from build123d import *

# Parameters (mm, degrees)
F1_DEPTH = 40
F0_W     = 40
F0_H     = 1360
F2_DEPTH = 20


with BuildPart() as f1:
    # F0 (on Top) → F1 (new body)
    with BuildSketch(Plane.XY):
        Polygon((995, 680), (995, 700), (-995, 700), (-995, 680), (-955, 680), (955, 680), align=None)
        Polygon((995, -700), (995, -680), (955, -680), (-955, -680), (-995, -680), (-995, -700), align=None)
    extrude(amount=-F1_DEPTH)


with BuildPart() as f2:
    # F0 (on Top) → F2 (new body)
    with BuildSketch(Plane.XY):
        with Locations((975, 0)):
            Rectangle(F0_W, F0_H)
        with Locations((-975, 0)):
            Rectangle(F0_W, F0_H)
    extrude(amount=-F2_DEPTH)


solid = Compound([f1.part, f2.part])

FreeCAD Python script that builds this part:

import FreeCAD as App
import Part
import Sketcher

V = App.Vector


def add_polygon(sketch, points):
    """Adds a closed chain of lines whose ends are joined by coincident constraints."""
    first, n = sketch.GeometryCount, len(points)
    for a, b in zip(points, points[1:] + points[:1]):
        sketch.addGeometry(Part.LineSegment(App.Vector(*a, 0), App.Vector(*b, 0)), False)
    for i in range(n):
        sketch.addConstraint(Sketcher.Constraint("Coincident", first + i, 2, first + (i + 1) % n, 1))

doc = App.newDocument("Part")
body = doc.addObject("PartDesign::Body", "Body")
body.AllowCompound = True

# Sketch on XY plane
sketch1 = body.newObject("Sketcher::SketchObject", "Sketch")
sketch1.AttachmentSupport = (doc.getObject("XY_Plane"), [""])
sketch1.MapMode = "FlatFace"
add_polygon(sketch1, [(995, 680), (995, 700), (-995, 700), (-995, 680)])  # lines 0-3
add_polygon(sketch1, [(995, -700), (995, -680), (-995, -680), (-995, -700)])  # lines 4-7
sketch1.addConstraint([
    Sketcher.Constraint("Vertical", 0),
    Sketcher.Constraint("Horizontal", 1),
    Sketcher.Constraint("Vertical", 2),
    Sketcher.Constraint("Horizontal", 3),
    Sketcher.Constraint("Vertical", 4),
    Sketcher.Constraint("Horizontal", 5),
    Sketcher.Constraint("Vertical", 6),
    Sketcher.Constraint("Horizontal", 7),
    Sketcher.Constraint("Symmetric", 2, 2, 4, 2, -1, 1),
    Sketcher.Constraint("Symmetric", 0, 2, 6, 2, -1, 1),
    Sketcher.Constraint("Vertical", 3, 2, 4, 2),
    Sketcher.Constraint("DistanceX", 1, 2, 1, 1, 1990.0),
    Sketcher.Constraint("DistanceY", 0, 1, 0, 2, 20.0),
    Sketcher.Constraint("DistanceY", -1, 1, 0, 2, 700.0),
])
pad1 = body.newObject("PartDesign::Pad", "Pad")
pad1.Profile = sketch1
pad1.Length = 40
pad1.Reversed = True
body2 = doc.addObject("PartDesign::Body", "Body001")
body2.AllowCompound = True

# Sketch on XY plane
sketch2 = body2.newObject("Sketcher::SketchObject", "Sketch001")
sketch2.AttachmentSupport = (doc.getObject("XY_Plane001"), [""])
sketch2.MapMode = "FlatFace"
add_polygon(sketch2, [(955, 680), (955, -680), (995, -680), (995, 680)])  # lines 0-3
add_polygon(sketch2, [(-995, 680), (-995, -680), (-955, -680), (-955, 680)])  # lines 4-7
sketch2.addConstraint([
    Sketcher.Constraint("Vertical", 0),
    Sketcher.Constraint("Horizontal", 1),
    Sketcher.Constraint("Vertical", 2),
    Sketcher.Constraint("Horizontal", 3),
    Sketcher.Constraint("Vertical", 4),
    Sketcher.Constraint("Horizontal", 5),
    Sketcher.Constraint("Vertical", 6),
    Sketcher.Constraint("Horizontal", 7),
    Sketcher.Constraint("Symmetric", 2, 2, 4, 2, -1, 1),
    Sketcher.Constraint("Symmetric", 0, 2, 6, 2, -1, 1),
    Sketcher.Constraint("Horizontal", 1, 2, 4, 2),
    Sketcher.Constraint("DistanceX", 1, 1, 1, 2, 40.0),
    Sketcher.Constraint("DistanceY", 0, 2, 0, 1, 1360.0),
    Sketcher.Constraint("DistanceX", -1, 1, 0, 2, 955.0),
])
pad2 = body2.newObject("PartDesign::Pad", "Pad001")
pad2.Profile = sketch2
pad2.Length = 20
pad2.Reversed = True

doc.recompute()
